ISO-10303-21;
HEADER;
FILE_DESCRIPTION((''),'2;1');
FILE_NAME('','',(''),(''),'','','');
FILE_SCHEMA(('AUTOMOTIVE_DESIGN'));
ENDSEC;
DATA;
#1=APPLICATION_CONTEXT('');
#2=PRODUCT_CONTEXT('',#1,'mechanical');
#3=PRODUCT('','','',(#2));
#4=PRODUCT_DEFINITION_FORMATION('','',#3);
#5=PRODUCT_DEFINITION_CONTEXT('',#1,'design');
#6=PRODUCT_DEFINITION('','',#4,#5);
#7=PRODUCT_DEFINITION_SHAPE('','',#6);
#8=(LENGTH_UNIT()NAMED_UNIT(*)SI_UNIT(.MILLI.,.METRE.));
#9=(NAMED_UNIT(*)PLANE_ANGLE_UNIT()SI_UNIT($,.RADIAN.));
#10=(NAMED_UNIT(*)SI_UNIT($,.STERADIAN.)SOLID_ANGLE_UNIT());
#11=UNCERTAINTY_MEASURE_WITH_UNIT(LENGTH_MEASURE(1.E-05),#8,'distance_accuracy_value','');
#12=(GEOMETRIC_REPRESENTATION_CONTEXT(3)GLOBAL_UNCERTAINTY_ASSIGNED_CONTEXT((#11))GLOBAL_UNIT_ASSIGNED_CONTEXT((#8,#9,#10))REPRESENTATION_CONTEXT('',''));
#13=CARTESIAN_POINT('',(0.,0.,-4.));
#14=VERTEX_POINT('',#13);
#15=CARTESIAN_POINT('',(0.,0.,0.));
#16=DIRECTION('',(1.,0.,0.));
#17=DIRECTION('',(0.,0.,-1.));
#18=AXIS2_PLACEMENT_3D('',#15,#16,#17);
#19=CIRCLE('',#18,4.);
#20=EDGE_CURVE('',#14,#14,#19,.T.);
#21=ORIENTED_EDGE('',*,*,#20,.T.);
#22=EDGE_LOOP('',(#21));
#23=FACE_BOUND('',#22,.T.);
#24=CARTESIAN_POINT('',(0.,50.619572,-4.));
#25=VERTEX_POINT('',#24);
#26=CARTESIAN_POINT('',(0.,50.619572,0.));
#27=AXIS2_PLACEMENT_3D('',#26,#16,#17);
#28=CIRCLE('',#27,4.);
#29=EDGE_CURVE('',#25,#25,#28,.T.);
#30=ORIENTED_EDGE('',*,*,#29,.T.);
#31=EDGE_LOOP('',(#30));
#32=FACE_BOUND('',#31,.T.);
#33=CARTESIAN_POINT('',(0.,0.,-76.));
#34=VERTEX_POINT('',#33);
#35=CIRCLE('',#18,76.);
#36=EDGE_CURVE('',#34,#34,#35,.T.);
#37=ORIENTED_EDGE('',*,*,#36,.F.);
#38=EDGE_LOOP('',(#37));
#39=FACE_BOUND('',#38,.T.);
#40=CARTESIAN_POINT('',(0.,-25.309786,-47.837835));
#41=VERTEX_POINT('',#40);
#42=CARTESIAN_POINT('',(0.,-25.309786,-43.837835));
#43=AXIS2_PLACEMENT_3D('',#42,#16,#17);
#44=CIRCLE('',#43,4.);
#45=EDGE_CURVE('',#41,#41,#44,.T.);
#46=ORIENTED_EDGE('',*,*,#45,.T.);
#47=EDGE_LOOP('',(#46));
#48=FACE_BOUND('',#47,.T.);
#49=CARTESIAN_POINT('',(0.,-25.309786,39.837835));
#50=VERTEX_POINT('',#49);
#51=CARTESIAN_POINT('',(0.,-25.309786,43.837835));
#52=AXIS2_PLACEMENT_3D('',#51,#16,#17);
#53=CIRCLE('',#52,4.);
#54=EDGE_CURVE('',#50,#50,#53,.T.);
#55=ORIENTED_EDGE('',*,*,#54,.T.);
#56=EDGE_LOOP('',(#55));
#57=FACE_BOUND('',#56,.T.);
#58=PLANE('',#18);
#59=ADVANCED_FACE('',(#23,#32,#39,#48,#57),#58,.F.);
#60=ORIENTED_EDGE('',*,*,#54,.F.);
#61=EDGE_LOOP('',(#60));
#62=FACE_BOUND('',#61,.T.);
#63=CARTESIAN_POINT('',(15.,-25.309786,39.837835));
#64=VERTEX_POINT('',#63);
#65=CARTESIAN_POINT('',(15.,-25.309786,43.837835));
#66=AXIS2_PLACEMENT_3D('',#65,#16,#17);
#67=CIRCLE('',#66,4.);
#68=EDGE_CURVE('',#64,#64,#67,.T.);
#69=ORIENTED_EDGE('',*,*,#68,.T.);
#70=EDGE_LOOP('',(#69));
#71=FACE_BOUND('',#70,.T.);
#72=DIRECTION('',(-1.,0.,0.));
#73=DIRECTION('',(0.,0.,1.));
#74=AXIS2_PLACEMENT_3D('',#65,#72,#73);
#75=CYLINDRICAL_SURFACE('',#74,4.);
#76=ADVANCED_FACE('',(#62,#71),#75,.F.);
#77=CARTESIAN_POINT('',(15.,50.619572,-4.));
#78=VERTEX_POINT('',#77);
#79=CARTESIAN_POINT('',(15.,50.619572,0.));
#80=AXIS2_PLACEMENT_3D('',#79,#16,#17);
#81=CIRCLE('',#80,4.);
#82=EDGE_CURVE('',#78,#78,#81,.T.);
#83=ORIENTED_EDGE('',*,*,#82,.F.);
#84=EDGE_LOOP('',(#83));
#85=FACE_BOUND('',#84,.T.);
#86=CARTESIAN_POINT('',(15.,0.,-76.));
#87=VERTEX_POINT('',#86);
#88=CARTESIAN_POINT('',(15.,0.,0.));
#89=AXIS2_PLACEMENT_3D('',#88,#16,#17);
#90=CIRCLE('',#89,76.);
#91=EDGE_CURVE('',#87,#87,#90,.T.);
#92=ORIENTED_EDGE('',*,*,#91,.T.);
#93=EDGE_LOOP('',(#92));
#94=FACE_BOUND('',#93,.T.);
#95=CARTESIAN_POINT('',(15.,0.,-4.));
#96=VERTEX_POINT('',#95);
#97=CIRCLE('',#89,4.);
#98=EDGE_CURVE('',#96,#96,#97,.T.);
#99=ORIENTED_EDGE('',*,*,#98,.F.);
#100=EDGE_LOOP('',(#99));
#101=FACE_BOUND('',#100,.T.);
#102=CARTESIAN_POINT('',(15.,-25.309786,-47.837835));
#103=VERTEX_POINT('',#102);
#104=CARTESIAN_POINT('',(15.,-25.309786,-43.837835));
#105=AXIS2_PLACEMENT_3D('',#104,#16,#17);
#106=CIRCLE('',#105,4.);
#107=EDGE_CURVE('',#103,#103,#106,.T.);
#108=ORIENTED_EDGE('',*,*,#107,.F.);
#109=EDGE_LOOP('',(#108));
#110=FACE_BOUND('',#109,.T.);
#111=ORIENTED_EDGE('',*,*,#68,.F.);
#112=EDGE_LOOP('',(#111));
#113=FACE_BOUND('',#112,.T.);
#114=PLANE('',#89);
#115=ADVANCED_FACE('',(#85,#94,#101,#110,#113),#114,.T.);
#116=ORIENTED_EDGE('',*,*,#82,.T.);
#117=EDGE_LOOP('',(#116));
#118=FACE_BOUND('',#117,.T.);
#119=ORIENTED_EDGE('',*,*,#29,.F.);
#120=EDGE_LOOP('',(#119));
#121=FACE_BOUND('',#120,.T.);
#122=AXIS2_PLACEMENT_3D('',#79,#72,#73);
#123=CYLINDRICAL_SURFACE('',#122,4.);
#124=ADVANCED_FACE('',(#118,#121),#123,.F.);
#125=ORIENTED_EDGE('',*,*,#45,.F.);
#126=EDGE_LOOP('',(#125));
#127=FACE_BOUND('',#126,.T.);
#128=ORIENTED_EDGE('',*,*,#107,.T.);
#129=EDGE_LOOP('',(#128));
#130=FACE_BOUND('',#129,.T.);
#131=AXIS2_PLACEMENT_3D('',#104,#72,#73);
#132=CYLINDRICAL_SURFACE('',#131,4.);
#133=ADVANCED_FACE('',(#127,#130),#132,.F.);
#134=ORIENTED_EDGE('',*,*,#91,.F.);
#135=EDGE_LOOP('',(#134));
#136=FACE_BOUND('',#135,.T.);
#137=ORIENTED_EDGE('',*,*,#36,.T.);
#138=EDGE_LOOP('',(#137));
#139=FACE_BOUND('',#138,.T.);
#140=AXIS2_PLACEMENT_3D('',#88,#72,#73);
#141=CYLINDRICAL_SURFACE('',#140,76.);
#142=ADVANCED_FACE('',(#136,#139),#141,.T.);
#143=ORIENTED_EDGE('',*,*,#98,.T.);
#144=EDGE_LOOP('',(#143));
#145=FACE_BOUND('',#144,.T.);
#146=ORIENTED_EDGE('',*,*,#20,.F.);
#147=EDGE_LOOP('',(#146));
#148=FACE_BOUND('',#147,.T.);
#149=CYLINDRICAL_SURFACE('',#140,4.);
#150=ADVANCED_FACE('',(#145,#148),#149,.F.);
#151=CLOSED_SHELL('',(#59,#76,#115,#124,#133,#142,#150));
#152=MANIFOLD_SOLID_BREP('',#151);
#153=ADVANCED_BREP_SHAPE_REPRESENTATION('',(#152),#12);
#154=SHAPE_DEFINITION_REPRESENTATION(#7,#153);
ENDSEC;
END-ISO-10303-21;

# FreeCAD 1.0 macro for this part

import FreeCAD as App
import Part
import Sketcher
from FreeCAD import Vector
Q = App.Units.Quantity

doc = App.newDocument("Part")
body = doc.addObject("PartDesign::Body", "Body")

# Sketch on YZ plane
sketch1 = doc.addObject("Sketcher::SketchObject", "Sketch")
body.addObject(sketch1)
sketch1.AttachmentSupport = (doc.YZ_Plane, [""])
sketch1.MapMode = "FlatFace"
sketch1.addGeometry([
    Part.Circle(Vector(0, 0, 0), Vector(0, 0, 1), 76),  # 0
    Part.Circle(Vector(-25.309786, 43.837835, 0), Vector(0, 0, 1), 4),  # 1
    Part.Circle(Vector(-25.309786, -43.837835, 0), Vector(0, 0, 1), 4),  # 2
    Part.Circle(Vector(0, 0, 0), Vector(0, 0, 1), 4),  # 3
    Part.Circle(Vector(50.619572, 0, 0), Vector(0, 0, 1), 4),  # 4
], False)
sketch1.addConstraint([
    Sketcher.Constraint("Coincident", 0, 3, -1, 1),
    Sketcher.Constraint("Coincident", 3, 3, -1, 1),
    Sketcher.Constraint("Equal", 1, 2),
    Sketcher.Constraint("Equal", 2, 3),
    Sketcher.Constraint("Equal", 3, 4),
    Sketcher.Constraint("Symmetric", 1, 3, 2, 3, -1),
    Sketcher.Constraint("PointOnObject", 4, 3, -1),
    Sketcher.Constraint("Diameter", 0, Q("152 mm")),
    Sketcher.Constraint("Diameter", 1, Q("8 mm")),
    Sketcher.Constraint("DistanceY", 2, 3, 1, 3, Q("87.675671 mm")),
    Sketcher.Constraint("DistanceX", 1, 3, 4, 3, Q("75.929358 mm")),
    Sketcher.Constraint("DistanceX", 1, 3, -1, 1, Q("25.309786 mm")),
])
pad1 = doc.addObject("PartDesign::Pad", "Pad")
body.addObject(pad1)
pad1.Profile = sketch1
pad1.Length = 15

doc.recompute()
